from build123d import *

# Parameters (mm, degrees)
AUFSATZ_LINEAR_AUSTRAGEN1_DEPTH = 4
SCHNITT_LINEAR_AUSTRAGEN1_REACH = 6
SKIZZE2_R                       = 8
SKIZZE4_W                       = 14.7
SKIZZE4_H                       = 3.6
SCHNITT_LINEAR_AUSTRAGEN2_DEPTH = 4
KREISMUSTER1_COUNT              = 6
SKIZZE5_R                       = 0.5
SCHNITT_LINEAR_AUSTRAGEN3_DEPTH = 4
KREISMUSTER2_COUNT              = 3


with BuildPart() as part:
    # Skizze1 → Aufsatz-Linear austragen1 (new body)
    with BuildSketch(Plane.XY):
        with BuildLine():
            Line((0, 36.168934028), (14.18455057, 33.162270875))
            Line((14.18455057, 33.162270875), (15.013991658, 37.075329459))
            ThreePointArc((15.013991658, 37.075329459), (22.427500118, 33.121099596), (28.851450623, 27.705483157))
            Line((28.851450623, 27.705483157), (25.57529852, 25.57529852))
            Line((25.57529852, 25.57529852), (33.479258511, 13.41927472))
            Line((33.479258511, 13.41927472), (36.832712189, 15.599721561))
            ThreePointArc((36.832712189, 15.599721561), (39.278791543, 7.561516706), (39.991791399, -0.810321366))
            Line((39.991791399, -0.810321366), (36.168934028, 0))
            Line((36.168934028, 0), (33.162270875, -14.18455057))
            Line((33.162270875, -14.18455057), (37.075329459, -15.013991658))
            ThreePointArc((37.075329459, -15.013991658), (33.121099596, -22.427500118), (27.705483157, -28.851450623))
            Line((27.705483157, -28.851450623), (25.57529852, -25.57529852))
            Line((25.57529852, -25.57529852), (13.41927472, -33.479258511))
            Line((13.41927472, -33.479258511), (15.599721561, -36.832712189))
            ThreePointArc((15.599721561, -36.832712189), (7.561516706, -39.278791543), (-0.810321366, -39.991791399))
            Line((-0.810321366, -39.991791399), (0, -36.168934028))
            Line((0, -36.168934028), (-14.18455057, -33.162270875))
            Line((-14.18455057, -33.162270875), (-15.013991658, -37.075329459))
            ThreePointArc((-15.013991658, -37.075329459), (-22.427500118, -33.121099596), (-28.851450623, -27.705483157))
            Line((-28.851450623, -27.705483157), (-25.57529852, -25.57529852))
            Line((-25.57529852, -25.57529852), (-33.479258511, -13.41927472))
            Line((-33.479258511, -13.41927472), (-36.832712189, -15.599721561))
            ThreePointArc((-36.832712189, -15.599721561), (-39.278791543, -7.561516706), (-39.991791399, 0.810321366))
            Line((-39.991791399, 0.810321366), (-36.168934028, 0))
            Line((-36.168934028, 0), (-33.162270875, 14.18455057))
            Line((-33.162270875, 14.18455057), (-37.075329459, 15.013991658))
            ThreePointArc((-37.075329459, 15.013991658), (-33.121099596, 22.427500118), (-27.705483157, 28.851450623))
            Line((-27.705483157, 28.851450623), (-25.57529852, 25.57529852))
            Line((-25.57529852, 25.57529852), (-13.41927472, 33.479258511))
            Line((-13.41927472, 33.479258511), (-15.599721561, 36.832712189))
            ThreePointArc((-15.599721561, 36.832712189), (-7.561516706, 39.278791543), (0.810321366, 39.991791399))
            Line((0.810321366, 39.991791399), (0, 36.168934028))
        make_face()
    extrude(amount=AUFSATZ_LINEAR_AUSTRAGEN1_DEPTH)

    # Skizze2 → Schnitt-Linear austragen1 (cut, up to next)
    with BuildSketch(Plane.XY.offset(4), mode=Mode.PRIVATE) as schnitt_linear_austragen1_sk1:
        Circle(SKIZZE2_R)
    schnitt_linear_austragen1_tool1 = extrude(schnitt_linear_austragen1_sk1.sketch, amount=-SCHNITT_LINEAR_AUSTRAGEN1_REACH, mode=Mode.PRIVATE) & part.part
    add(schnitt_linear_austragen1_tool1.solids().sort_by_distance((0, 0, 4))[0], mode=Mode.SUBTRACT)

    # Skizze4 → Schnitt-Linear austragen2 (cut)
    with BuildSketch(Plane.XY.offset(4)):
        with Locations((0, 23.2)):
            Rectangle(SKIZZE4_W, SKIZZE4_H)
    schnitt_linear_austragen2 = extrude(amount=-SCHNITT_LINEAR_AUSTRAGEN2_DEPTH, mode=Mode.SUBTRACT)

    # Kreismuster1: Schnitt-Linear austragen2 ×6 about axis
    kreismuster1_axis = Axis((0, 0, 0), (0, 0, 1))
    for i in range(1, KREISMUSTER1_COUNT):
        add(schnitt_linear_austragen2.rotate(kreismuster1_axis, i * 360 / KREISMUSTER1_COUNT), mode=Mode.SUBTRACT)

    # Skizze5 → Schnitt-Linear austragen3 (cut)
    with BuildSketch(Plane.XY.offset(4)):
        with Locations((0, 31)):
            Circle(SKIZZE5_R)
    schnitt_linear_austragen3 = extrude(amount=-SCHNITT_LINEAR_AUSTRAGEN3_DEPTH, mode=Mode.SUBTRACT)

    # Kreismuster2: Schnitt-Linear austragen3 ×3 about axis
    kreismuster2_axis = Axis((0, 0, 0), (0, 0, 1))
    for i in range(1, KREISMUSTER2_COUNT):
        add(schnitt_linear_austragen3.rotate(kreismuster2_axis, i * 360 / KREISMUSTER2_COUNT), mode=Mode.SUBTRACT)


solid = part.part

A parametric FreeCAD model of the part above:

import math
import FreeCAD as App
import Part
import Sketcher

V = App.Vector
Q = App.Units.Quantity


def add_polygon(sketch, points):
    """Adds a closed chain of lines whose ends are joined by coincident constraints."""
    first, n = sketch.GeometryCount, len(points)
    for a, b in zip(points, points[1:] + points[:1]):
        sketch.addGeometry(Part.LineSegment(App.Vector(*a, 0), App.Vector(*b, 0)), False)
    for i in range(n):
        sketch.addConstraint(Sketcher.Constraint("Coincident", first + i, 2, first + (i + 1) % n, 1))

doc = App.newDocument("Part")
body = doc.addObject("PartDesign::Body", "Body")

# Sketch on XY plane
sketch1 = doc.addObject("Sketcher::SketchObject", "Sketch")
body.addObject(sketch1)
sketch1.AttachmentSupport = (doc.XY_Plane, [""])
sketch1.MapMode = "FlatFace"
sketch1.addGeometry([
    Part.LineSegment(V(14.2, 33.2, 0), V(0, 36.2, 0)),  # 0
    Part.LineSegment(V(0, 36.2, 0), V(0.8, 40, 0)),  # 1
    Part.ArcOfCircle(Part.Circle(V(0, 0, 0), V(0, 0, 1), 40), math.radians(89), math.radians(113)),  # 2
    Part.LineSegment(V(-15.6, 36.8, 0), V(-13.4, 33.5, 0)),  # 3
    Part.LineSegment(V(-13.4, 33.5, 0), V(-25.6, 25.6, 0)),  # 4
    Part.LineSegment(V(-25.6, 25.6, 0), V(-27.7, 28.9, 0)),  # 5
    Part.ArcOfCircle(Part.Circle(V(0, 0, 0), V(0, 0, 1), 40), math.radians(134), math.radians(158)),  # 6
    Part.LineSegment(V(-37.1, 15, 0), V(-33.2, 14.2, 0)),  # 7
    Part.LineSegment(V(-33.2, 14.2, 0), V(-36.2, 0, 0)),  # 8
    Part.LineSegment(V(-36.2, 0, 0), V(-40, 0.8, 0)),  # 9
    Part.ArcOfCircle(Part.Circle(V(0, 0, 0), V(0, 0, 1), 40), math.radians(179), math.radians(203)),  # 10
    Part.LineSegment(V(-36.8, -15.6, 0), V(-33.5, -13.4, 0)),  # 11
    Part.LineSegment(V(-33.5, -13.4, 0), V(-25.6, -25.6, 0)),  # 12
    Part.LineSegment(V(-25.6, -25.6, 0), V(-28.9, -27.7, 0)),  # 13
    Part.ArcOfCircle(Part.Circle(V(0, 0, 0), V(0, 0, 1), 40), math.radians(-136), math.radians(-112)),  # 14
    Part.LineSegment(V(-15, -37.1, 0), V(-14.2, -33.2, 0)),  # 15
    Part.LineSegment(V(-14.2, -33.2, 0), V(0, -36.2, 0)),  # 16
    Part.LineSegment(V(0, -36.2, 0), V(-0.8, -40, 0)),  # 17
    Part.ArcOfCircle(Part.Circle(V(0, 0, 0), V(0, 0, 1), 40), math.radians(-91), math.radians(-67)),  # 18
    Part.LineSegment(V(15.6, -36.8, 0), V(13.4, -33.5, 0)),  # 19
    Part.LineSegment(V(13.4, -33.5, 0), V(25.6, -25.6, 0)),  # 20
    Part.LineSegment(V(25.6, -25.6, 0), V(27.7, -28.9, 0)),  # 21
    Part.ArcOfCircle(Part.Circle(V(0, 0, 0), V(0, 0, 1), 40), math.radians(-46), math.radians(-22)),  # 22
    Part.LineSegment(V(37.1, -15, 0), V(33.2, -14.2, 0)),  # 23
    Part.LineSegment(V(33.2, -14.2, 0), V(36.2, 0, 0)),  # 24
    Part.LineSegment(V(36.2, 0, 0), V(40, -0.8, 0)),  # 25
    Part.ArcOfCircle(Part.Circle(V(0, 0, 0), V(0, 0, 1), 40), math.radians(-1), math.radians(23)),  # 26
    Part.LineSegment(V(36.8, 15.6, 0), V(33.5, 13.4, 0)),  # 27
    Part.LineSegment(V(33.5, 13.4, 0), V(25.6, 25.6, 0)),  # 28
    Part.LineSegment(V(25.6, 25.6, 0), V(28.9, 27.7, 0)),  # 29
    Part.ArcOfCircle(Part.Circle(V(0, 0, 0), V(0, 0, 1), 40), math.radians(44), math.radians(68)),  # 30
    Part.LineSegment(V(15, 37.1, 0), V(14.2, 33.2, 0)),  # 31
], False)
sketch1.addConstraint([
    Sketcher.Constraint("Coincident", 0, 2, 1, 1),
    Sketcher.Constraint("Coincident", 1, 2, 2, 1),
    Sketcher.Constraint("Coincident", 2, 2, 3, 1),
    Sketcher.Constraint("Coincident", 3, 2, 4, 1),
    Sketcher.Constraint("Coincident", 4, 2, 5, 1),
    Sketcher.Constraint("Coincident", 5, 2, 6, 1),
    Sketcher.Constraint("Coincident", 6, 2, 7, 1),
    Sketcher.Constraint("Coincident", 7, 2, 8, 1),
    Sketcher.Constraint("Coincident", 8, 2, 9, 1),
    Sketcher.Constraint("Coincident", 9, 2, 10, 1),
    Sketcher.Constraint("Coincident", 10, 2, 11, 1),
    Sketcher.Constraint("Coincident", 11, 2, 12, 1),
    Sketcher.Constraint("Coincident", 12, 2, 13, 1),
    Sketcher.Constraint("Coincident", 13, 2, 14, 1),
    Sketcher.Constraint("Coincident", 14, 2, 15, 1),
    Sketcher.Constraint("Coincident", 15, 2, 16, 1),
    Sketcher.Constraint("Coincident", 16, 2, 17, 1),
    Sketcher.Constraint("Coincident", 17, 2, 18, 1),
    Sketcher.Constraint("Coincident", 18, 2, 19, 1),
    Sketcher.Constraint("Coincident", 19, 2, 20, 1),
    Sketcher.Constraint("Coincident", 20, 2, 21, 1),
    Sketcher.Constraint("Coincident", 21, 2, 22, 1),
    Sketcher.Constraint("Coincident", 22, 2, 23, 1),
    Sketcher.Constraint("Coincident", 23, 2, 24, 1),
    Sketcher.Constraint("Coincident", 24, 2, 25, 1),
    Sketcher.Constraint("Coincident", 25, 2, 26, 1),
    Sketcher.Constraint("Coincident", 26, 2, 27, 1),
    Sketcher.Constraint("Coincident", 27, 2, 28, 1),
    Sketcher.Constraint("Coincident", 28, 2, 29, 1),
    Sketcher.Constraint("Coincident", 29, 2, 30, 1),
    Sketcher.Constraint("Coincident", 30, 2, 31, 1),
    Sketcher.Constraint("Coincident", 31, 2, 0, 1),
    Sketcher.Constraint("Coincident", 2, 3, -1, 1),
    Sketcher.Constraint("Coincident", 6, 3, -1, 1),
    Sketcher.Constraint("Coincident", 10, 3, -1, 1),
    Sketcher.Constraint("Coincident", 14, 3, -1, 1),
    Sketcher.Constraint("Coincident", 18, 3, -1, 1),
    Sketcher.Constraint("Coincident", 22, 3, -1, 1),
    Sketcher.Constraint("Coincident", 26, 3, -1, 1),
    Sketcher.Constraint("Coincident", 30, 3, -1, 1),
    Sketcher.Constraint("Equal", 2, 6),
    Sketcher.Constraint("Equal", 6, 10),
    Sketcher.Constraint("Equal", 10, 14),
    Sketcher.Constraint("Equal", 14, 18),
    Sketcher.Constraint("Equal", 18, 22),
    Sketcher.Constraint("Equal", 22, 26),
    Sketcher.Constraint("Equal", 26, 30),
    Sketcher.Constraint("Symmetric", 0, 2, 16, 2, -1, 1),
    Sketcher.Constraint("Symmetric", 3, 2, 19, 2, -1, 1),
    Sketcher.Constraint("Symmetric", 4, 2, 20, 2, -1, 1),
    Sketcher.Constraint("Symmetric", 7, 2, 23, 2, -1, 1),
    Sketcher.Constraint("Symmetric", 8, 2, 24, 2, -1, 1),
    Sketcher.Constraint("Symmetric", 11, 2, 27, 2, -1, 1),
    Sketcher.Constraint("Symmetric", 12, 2, 28, 2, -1, 1),
    Sketcher.Constraint("Symmetric", 15, 2, 31, 2, -1, 1),
    Sketcher.Constraint("Symmetric", 12, 2, 20, 2, -2),
    Sketcher.Constraint("PointOnObject", 0, 2, -2),
    Sketcher.Constraint("PointOnObject", 8, 2, -1),
    Sketcher.Constraint("Perpendicular", 0, 1),
    Sketcher.Constraint("Perpendicular", 3, 4),
    Sketcher.Constraint("Perpendicular", 4, 5),
    Sketcher.Constraint("Perpendicular", 1, 7),
    Sketcher.Constraint("Perpendicular", 7, 8),
    Sketcher.Constraint("Perpendicular", 8, 9),
    Sketcher.Constraint("Perpendicular", 5, 11),
    Sketcher.Constraint("Perpendicular", 11, 12),
    Sketcher.Constraint("Perpendicular", 12, 13),
    Sketcher.Constraint("Perpendicular", 9, 15),
    Sketcher.Constraint("Perpendicular", 16, 17),
    Sketcher.Constraint("Perpendicular", 13, 19),
    Sketcher.Constraint("Perpendicular", 20, 21),
    Sketcher.Constraint("Perpendicular", 17, 23),
    Sketcher.Constraint("Perpendicular", 24, 25),
    Sketcher.Constraint("Perpendicular", 21, 27),
    Sketcher.Constraint("Perpendicular", 28, 29),
    Sketcher.Constraint("Perpendicular", 25, 31),
    Sketcher.Constraint("Equal", 0, 4),
    Sketcher.Constraint("Equal", 1, 5),
    Sketcher.Constraint("Equal", 3, 7),
    Sketcher.Constraint("Equal", 4, 8),
    Sketcher.Constraint("Equal", 5, 9),
    Sketcher.Constraint("Equal", 7, 11),
    Sketcher.Constraint("Equal", 8, 12),
    Sketcher.Constraint("Radius", 2, Q("40 mm")),
    Sketcher.Constraint("Distance", 3, Q("4 mm")),
    Sketcher.Constraint("DistanceX", 4, 2, -1, 1, Q("25.575299 mm")),
    Sketcher.Constraint("DistanceY", 7, 2, 5, 2, Q("14.6669 mm")),
])
pad1 = doc.addObject("PartDesign::Pad", "Pad")
body.addObject(pad1)
pad1.Profile = sketch1
pad1.Length = 4

# Sketch on XY plane
sketch2 = doc.addObject("Sketcher::SketchObject", "Sketch001")
body.addObject(sketch2)
sketch2.AttachmentSupport = (doc.XY_Plane, [""])
sketch2.MapMode = "FlatFace"
sketch2.AttachmentOffset = App.Placement(V(0, 0, 4), App.Rotation())
sketch2.addGeometry(Part.Circle(V(0, 0, 0), V(0, 0, 1), 8), False)
sketch2.addConstraint([
    Sketcher.Constraint("Coincident", 0, 3, -1, 1),
    Sketcher.Constraint("Diameter", 0, Q("16 mm")),
])
pocket1 = doc.addObject("PartDesign::Pocket", "Pocket")
body.addObject(pocket1)
pocket1.Profile = sketch2
pocket1.Type = "UpToFirst"

# Sketch on XY plane
sketch3 = doc.addObject("Sketcher::SketchObject", "Sketch002")
body.addObject(sketch3)
sketch3.AttachmentSupport = (doc.XY_Plane, [""])
sketch3.MapMode = "FlatFace"
sketch3.AttachmentOffset = App.Placement(V(0, 0, 4), App.Rotation())
add_polygon(sketch3, [(-7.3, 25), (-7.3, 21.4), (7.3, 21.4), (7.3, 25)])  # lines 0-3
sketch3.addConstraint([
    Sketcher.Constraint("Vertical", 0),
    Sketcher.Constraint("Horizontal", 1),
    Sketcher.Constraint("Vertical", 2),
    Sketcher.Constraint("Horizontal", 3),
    Sketcher.Constraint("DistanceX", 1, 1, 1, 2, Q("14.7 mm")),
    Sketcher.Constraint("DistanceY", 0, 2, 0, 1, Q("3.6 mm")),
    Sketcher.Constraint("DistanceY", -1, 1, 2, 2, Q("25 mm")),
    Sketcher.Constraint("DistanceX", 0, 2, -1, 1, Q("7.35 mm")),
])
pocket2 = doc.addObject("PartDesign::Pocket", "Pocket001")
body.addObject(pocket2)
pocket2.Profile = sketch3
pocket2.Length = 4
doc.recompute()

polarpattern = doc.addObject("PartDesign::PolarPattern", "PolarPattern")
body.addObject(polarpattern)
polarpattern.Originals = [pocket2]
polarpattern.Axis = (doc.Z_Axis, [""])
polarpattern.Angle = 360
polarpattern.Occurrences = 6
body.Tip = polarpattern

# Sketch on XY plane
sketch4 = doc.addObject("Sketcher::SketchObject", "Sketch003")
body.addObject(sketch4)
sketch4.AttachmentSupport = (doc.XY_Plane, [""])
sketch4.MapMode = "FlatFace"
sketch4.AttachmentOffset = App.Placement(V(0, 0, 4), App.Rotation())
sketch4.addGeometry(Part.Circle(V(0, 31, 0), V(0, 0, 1), 0.5), False)
sketch4.addConstraint([
    Sketcher.Constraint("PointOnObject", 0, 3, -2),
    Sketcher.Constraint("Diameter", 0, Q("1 mm")),
    Sketcher.Constraint("DistanceY", -1, 1, 0, 3, Q("31 mm")),
])
pocket3 = doc.addObject("PartDesign::Pocket", "Pocket002")
body.addObject(pocket3)
pocket3.Profile = sketch4
pocket3.Length = 4
doc.recompute()

polarpattern2 = doc.addObject("PartDesign::PolarPattern", "PolarPattern001")
body.addObject(polarpattern2)
polarpattern2.Originals = [pocket3]
polarpattern2.Axis = (doc.Z_Axis, [""])
polarpattern2.Angle = 360
polarpattern2.Occurrences = 3
body.Tip = polarpattern2

doc.recompute()
